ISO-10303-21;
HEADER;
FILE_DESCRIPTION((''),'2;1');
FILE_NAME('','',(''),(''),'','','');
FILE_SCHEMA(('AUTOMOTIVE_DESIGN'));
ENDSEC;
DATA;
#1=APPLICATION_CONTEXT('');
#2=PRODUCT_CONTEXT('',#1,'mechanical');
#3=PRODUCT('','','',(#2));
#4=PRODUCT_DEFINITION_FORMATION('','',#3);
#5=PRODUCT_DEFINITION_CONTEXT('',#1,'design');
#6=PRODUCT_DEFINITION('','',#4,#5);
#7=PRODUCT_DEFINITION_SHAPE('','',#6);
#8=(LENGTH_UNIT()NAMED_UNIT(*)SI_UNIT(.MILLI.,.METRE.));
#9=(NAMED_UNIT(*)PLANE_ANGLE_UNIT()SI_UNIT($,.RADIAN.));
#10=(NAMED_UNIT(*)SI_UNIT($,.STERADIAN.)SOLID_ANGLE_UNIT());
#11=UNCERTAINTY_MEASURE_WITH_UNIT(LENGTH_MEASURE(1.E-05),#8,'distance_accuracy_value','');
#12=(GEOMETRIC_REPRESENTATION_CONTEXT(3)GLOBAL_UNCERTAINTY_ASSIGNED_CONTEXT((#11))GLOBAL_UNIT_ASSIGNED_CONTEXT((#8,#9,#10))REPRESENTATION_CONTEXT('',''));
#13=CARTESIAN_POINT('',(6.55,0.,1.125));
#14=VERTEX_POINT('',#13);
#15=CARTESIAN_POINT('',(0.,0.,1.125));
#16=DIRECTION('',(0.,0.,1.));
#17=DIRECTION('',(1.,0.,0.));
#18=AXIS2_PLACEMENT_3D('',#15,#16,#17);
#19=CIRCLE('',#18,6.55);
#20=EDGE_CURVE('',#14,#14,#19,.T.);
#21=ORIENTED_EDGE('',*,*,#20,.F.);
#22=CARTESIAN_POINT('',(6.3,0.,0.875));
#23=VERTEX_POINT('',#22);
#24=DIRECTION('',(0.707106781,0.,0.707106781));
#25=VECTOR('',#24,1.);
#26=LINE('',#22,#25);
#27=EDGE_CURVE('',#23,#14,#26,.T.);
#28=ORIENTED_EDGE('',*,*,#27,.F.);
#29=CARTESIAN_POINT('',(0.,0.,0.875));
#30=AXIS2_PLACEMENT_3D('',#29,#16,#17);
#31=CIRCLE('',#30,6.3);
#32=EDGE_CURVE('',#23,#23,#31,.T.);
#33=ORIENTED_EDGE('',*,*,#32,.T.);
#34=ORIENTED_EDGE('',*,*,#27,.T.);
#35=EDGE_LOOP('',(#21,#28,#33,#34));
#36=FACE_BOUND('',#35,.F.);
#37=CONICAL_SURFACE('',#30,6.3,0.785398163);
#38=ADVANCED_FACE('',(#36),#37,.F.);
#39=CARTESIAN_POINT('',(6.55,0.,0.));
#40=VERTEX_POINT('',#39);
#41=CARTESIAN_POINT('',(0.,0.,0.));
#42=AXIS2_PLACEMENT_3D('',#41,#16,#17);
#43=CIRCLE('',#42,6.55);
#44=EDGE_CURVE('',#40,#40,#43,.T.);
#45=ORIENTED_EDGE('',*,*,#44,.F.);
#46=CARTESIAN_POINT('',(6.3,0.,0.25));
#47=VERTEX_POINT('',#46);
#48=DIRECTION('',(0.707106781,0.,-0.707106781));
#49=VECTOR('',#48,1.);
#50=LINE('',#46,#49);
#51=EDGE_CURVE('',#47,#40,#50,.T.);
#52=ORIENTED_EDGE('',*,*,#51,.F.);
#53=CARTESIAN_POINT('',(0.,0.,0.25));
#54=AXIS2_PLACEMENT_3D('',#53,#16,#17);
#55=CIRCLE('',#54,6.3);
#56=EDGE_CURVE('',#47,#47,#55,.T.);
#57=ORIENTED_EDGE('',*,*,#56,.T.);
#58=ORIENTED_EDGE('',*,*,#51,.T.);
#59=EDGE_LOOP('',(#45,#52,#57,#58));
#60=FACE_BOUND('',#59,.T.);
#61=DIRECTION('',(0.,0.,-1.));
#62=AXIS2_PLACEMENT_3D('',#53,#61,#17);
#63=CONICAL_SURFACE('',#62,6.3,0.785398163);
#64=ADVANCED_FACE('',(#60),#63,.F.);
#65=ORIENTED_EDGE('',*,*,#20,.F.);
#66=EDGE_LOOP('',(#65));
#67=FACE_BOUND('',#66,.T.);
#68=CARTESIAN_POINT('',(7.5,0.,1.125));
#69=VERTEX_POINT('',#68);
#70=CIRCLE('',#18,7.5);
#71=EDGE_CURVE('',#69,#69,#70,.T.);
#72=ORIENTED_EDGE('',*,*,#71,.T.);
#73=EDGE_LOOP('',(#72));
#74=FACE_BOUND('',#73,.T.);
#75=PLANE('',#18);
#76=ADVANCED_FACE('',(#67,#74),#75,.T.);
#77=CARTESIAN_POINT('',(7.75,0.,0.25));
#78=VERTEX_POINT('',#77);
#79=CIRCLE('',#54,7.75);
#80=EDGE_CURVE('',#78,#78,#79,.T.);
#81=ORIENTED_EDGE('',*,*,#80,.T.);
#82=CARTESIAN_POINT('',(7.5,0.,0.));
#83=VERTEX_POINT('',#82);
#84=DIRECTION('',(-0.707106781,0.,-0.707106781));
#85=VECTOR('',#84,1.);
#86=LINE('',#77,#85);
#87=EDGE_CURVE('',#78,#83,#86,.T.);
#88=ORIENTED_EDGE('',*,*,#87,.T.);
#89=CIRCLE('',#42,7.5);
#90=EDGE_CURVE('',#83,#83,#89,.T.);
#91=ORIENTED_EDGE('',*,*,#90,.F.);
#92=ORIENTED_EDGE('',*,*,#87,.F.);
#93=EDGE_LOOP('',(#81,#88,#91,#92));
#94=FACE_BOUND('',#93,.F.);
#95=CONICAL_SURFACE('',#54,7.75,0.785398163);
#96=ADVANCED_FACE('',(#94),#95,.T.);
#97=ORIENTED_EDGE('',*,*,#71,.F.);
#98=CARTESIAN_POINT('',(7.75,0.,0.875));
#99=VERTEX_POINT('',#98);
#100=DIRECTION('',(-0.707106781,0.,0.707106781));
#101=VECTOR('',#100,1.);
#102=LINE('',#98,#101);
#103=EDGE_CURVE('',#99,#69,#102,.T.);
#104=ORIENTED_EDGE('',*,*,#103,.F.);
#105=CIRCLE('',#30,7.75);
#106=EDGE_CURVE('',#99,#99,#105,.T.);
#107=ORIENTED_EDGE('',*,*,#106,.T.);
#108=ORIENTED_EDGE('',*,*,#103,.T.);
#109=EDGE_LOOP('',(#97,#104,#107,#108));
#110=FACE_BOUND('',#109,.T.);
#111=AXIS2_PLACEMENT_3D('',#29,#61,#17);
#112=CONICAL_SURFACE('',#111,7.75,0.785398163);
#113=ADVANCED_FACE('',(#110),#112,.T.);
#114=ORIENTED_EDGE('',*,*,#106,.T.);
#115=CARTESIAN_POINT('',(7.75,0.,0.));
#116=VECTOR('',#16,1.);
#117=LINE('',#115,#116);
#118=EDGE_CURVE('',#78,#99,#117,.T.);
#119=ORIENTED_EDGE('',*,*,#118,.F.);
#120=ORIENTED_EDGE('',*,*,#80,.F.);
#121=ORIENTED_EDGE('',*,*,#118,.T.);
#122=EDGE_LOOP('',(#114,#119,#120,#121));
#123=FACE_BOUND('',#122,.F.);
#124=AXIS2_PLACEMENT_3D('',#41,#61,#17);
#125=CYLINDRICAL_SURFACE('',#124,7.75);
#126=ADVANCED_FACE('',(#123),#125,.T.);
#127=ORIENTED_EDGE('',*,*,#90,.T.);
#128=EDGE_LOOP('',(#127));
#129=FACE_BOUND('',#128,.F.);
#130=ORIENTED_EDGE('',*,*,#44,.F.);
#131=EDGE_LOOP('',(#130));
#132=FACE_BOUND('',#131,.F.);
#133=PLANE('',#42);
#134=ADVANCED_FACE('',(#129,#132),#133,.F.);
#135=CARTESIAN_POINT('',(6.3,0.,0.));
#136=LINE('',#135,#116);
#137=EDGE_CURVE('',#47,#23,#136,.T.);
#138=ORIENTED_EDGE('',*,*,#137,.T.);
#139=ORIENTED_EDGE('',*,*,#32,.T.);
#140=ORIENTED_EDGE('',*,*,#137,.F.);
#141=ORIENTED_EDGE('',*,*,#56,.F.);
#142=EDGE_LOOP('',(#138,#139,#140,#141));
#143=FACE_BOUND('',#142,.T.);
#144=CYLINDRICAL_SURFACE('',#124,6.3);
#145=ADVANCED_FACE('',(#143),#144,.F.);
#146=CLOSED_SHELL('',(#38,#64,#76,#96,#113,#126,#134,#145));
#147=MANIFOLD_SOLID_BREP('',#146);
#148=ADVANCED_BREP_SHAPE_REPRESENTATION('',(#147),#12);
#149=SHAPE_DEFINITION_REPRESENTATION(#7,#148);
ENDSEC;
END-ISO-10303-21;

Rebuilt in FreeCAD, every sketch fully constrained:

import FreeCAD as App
import Part
import Sketcher
Q = App.Units.Quantity


def edges_at(feature, points):
    """Names of the edges that pass closest to the given points."""
    edges = feature.Shape.Edges
    near = lambda p: min(range(len(edges)), key=lambda i: edges[i].distToShape(Part.Vertex(*p))[0])
    return sorted({f"Edge{near(p) + 1}" for p in points})

doc = App.newDocument("Part")
body = doc.addObject("PartDesign::Body", "Body")

# Sketch on XY plane
sketch1 = body.newObject("Sketcher::SketchObject", "Sketch")
sketch1.AttachmentSupport = (doc.getObject("XY_Plane"), [""])
sketch1.MapMode = "FlatFace"
sketch1.addGeometry(Part.Circle(App.Vector(0, 0, 0), App.Vector(0, 0, 1), 8), False)
sketch1.addGeometry(Part.Circle(App.Vector(0, 0, 0), App.Vector(0, 0, 1), 6), False)
sketch1.addConstraint(Sketcher.Constraint("Coincident", 0, 3, -1, 1))
sketch1.addConstraint(Sketcher.Constraint("Coincident", 1, 3, -1, 1))
sketch1.addConstraint(Sketcher.Constraint("Diameter", 0, Q("15.5 mm")))
sketch1.addConstraint(Sketcher.Constraint("Diameter", 1, Q("12.6 mm")))
pad1 = body.newObject("PartDesign::Pad", "Pad")
pad1.Profile = sketch1
pad1.Length = 1.125
doc.recompute()

chamfer = body.newObject("PartDesign::Chamfer", "Chamfer")
chamfer.Base = (pad1, edges_at(pad1, [
    (-7.75, 0, 1.125),
    (-6.3, 0, 1.125),
    (-7.75, 0, 0),
    (-6.3, 0, 0),
]))
chamfer.Size = 0.25

doc.recompute()
